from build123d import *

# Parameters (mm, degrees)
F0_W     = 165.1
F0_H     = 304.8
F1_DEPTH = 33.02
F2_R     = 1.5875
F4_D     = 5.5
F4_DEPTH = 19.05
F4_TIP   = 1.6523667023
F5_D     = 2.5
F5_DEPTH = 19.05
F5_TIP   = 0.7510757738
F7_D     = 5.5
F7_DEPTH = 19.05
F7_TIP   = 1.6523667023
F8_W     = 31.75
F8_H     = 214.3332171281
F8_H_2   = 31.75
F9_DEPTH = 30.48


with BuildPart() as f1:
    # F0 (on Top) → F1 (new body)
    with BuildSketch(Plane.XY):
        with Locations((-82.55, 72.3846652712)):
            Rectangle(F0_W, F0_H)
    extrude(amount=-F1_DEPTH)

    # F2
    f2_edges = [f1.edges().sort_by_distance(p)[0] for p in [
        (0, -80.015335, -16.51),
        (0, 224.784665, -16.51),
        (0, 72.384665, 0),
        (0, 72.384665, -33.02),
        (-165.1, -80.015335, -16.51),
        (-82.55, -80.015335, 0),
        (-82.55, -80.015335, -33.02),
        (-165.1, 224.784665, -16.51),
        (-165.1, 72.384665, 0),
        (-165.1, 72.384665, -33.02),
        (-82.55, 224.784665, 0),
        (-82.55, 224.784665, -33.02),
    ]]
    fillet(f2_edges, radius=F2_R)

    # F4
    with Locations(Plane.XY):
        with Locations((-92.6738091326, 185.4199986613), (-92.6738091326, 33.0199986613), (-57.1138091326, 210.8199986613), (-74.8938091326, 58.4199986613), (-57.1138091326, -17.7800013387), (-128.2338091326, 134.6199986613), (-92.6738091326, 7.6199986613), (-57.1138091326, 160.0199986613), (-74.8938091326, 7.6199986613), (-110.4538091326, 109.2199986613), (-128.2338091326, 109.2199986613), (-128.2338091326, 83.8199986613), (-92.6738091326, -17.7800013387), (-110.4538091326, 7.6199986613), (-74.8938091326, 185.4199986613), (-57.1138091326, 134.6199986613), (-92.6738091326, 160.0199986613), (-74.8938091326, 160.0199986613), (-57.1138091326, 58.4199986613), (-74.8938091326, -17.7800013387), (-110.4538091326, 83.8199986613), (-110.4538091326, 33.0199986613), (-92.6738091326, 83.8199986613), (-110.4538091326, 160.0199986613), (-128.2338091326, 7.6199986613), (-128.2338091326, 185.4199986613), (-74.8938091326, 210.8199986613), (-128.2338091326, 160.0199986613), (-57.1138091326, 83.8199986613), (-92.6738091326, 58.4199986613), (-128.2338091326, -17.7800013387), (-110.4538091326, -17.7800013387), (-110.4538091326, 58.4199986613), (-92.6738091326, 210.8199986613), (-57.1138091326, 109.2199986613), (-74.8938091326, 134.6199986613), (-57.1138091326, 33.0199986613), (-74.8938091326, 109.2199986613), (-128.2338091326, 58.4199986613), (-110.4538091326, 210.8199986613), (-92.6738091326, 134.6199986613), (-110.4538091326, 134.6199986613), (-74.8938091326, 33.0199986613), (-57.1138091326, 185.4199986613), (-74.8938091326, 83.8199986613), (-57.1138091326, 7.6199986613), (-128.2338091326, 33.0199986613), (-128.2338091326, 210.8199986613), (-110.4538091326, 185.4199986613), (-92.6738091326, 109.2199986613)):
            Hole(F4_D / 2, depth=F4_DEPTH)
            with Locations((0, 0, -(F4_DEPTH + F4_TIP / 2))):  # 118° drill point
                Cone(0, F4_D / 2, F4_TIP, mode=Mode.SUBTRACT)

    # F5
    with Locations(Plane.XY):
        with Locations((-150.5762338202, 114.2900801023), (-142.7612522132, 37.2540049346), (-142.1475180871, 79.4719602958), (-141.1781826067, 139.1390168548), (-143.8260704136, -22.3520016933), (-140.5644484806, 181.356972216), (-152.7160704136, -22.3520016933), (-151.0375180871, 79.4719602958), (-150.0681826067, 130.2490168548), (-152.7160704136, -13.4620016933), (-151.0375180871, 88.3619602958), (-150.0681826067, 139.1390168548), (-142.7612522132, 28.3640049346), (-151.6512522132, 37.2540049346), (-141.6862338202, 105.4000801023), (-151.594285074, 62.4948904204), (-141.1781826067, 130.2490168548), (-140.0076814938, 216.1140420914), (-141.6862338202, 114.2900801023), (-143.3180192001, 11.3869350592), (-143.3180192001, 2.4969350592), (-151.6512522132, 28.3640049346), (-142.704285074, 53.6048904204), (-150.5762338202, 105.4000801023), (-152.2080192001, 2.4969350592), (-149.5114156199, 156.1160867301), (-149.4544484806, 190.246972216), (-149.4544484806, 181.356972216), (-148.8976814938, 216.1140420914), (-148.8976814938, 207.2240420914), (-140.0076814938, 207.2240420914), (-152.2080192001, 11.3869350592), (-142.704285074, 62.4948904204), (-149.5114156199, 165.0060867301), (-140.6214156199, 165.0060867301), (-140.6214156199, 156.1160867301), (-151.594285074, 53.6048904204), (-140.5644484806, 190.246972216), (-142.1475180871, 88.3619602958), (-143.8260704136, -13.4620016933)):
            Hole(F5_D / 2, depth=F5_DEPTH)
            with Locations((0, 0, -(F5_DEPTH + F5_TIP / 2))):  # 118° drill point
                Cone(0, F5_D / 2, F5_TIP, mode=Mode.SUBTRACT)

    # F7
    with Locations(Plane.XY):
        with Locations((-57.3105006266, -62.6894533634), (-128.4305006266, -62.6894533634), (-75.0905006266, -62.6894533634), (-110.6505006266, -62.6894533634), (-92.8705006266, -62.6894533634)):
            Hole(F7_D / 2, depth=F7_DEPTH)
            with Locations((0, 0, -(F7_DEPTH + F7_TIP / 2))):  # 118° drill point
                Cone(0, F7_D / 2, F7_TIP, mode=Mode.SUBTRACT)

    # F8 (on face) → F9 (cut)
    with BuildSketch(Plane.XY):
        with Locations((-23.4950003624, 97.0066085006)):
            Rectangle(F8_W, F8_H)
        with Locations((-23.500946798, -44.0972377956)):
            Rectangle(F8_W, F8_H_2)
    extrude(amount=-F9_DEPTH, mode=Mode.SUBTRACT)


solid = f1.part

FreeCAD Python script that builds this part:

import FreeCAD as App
import Part
import Sketcher

V = App.Vector
Q = App.Units.Quantity

doc = App.newDocument("Part")
body = doc.addObject("PartDesign::Body", "Body")

sketch1 = body.newObject("Sketcher::SketchObject", "Sketch")
sketch1.AttachmentSupport = (doc.getObject("XY_Plane"), [""])
sketch1.MapMode = "FlatFace"
sketch1.addGeometry([
    Part.LineSegment(V(-165, 225, 0), V(-165, -80, 0)),
    Part.LineSegment(V(-165, -80, 0), V(0, -80, 0)),
    Part.LineSegment(V(0, -80, 0), V(0, 225, 0)),
    Part.LineSegment(V(0, 225, 0), V(-165, 225, 0)),
], False)
sketch1.addConstraint([
    Sketcher.Constraint("Coincident", 0, 2, 1, 1),
    Sketcher.Constraint("Coincident", 1, 2, 2, 1),
    Sketcher.Constraint("Coincident", 2, 2, 3, 1),
    Sketcher.Constraint("Coincident", 3, 2, 0, 1),
    Sketcher.Constraint("Vertical", 0),
    Sketcher.Constraint("Horizontal", 1),
    Sketcher.Constraint("Vertical", 2),
    Sketcher.Constraint("Horizontal", 3),
    Sketcher.Constraint("PointOnObject", 1, 2, -2),
    Sketcher.Constraint("DistanceY", 0, 2, 0, 1, Q("12 in")),
    Sketcher.Constraint("DistanceX", 1, 1, 1, 2, Q("6.5 in")),
    Sketcher.Constraint("DistanceY", 0, 2, -1, 1, Q("80.015335 mm")),
])
pad1 = body.newObject("PartDesign::Pad", "Pad")
pad1.Profile = sketch1
pad1.Length = Q("1.3 in")
pad1.Reversed = True
doc.recompute()

fillet = body.newObject("PartDesign::Fillet", "Fillet")
fillet.Base = (pad1, ["Edge1"])
fillet.UseAllEdges = True
fillet.Radius = Q("0.0625 in")

sketch2 = body.newObject("Sketcher::SketchObject", "Sketch001")
sketch2.AttachmentSupport = (doc.getObject("XY_Plane"), [""])
sketch2.MapMode = "FlatFace"
sketch2.addGeometry([
    Part.Circle(V(-92.7, 185.4, 0), V(0, 0, 1), 2.8),
    Part.Circle(V(-92.7, 33, 0), V(0, 0, 1), 2.8),
    Part.Circle(V(-57.1, 210.8, 0), V(0, 0, 1), 2.8),
    Part.Circle(V(-74.9, 58.4, 0), V(0, 0, 1), 2.8),
    Part.Circle(V(-57.1, -17.8, 0), V(0, 0, 1), 2.8),
    Part.Circle(V(-128.2, 134.6, 0), V(0, 0, 1), 2.8),
    Part.Circle(V(-92.7, 7.6, 0), V(0, 0, 1), 2.8),
    Part.Circle(V(-57.1, 160, 0), V(0, 0, 1), 2.8),
    Part.Circle(V(-74.9, 7.6, 0), V(0, 0, 1), 2.8),
    Part.Circle(V(-110.5, 109.2, 0), V(0, 0, 1), 2.8),
    Part.Circle(V(-128.2, 109.2, 0), V(0, 0, 1), 2.8),
    Part.Circle(V(-128.2, 83.8, 0), V(0, 0, 1), 2.8),
    Part.Circle(V(-92.7, -17.8, 0), V(0, 0, 1), 2.8),
    Part.Circle(V(-110.5, 7.6, 0), V(0, 0, 1), 2.8),
    Part.Circle(V(-74.9, 185.4, 0), V(0, 0, 1), 2.8),
    Part.Circle(V(-57.1, 134.6, 0), V(0, 0, 1), 2.8),
    Part.Circle(V(-92.7, 160, 0), V(0, 0, 1), 2.8),
    Part.Circle(V(-74.9, 160, 0), V(0, 0, 1), 2.8),
    Part.Circle(V(-57.1, 58.4, 0), V(0, 0, 1), 2.8),
    Part.Circle(V(-74.9, -17.8, 0), V(0, 0, 1), 2.8),
    Part.Circle(V(-110.5, 83.8, 0), V(0, 0, 1), 2.8),
    Part.Circle(V(-110.5, 33, 0), V(0, 0, 1), 2.8),
    Part.Circle(V(-92.7, 83.8, 0), V(0, 0, 1), 2.8),
    Part.Circle(V(-110.5, 160, 0), V(0, 0, 1), 2.8),
    Part.Circle(V(-128.2, 7.6, 0), V(0, 0, 1), 2.8),
    Part.Circle(V(-128.2, 185.4, 0), V(0, 0, 1), 2.8),
    Part.Circle(V(-74.9, 210.8, 0), V(0, 0, 1), 2.8),
    Part.Circle(V(-128.2, 160, 0), V(0, 0, 1), 2.8),
    Part.Circle(V(-57.1, 83.8, 0), V(0, 0, 1), 2.8),
    Part.Circle(V(-92.7, 58.4, 0), V(0, 0, 1), 2.8),
    Part.Circle(V(-128.2, -17.8, 0), V(0, 0, 1), 2.8),
    Part.Circle(V(-110.5, -17.8, 0), V(0, 0, 1), 2.8),
    Part.Circle(V(-110.5, 58.4, 0), V(0, 0, 1), 2.8),
    Part.Circle(V(-92.7, 210.8, 0), V(0, 0, 1), 2.8),
    Part.Circle(V(-57.1, 109.2, 0), V(0, 0, 1), 2.8),
    Part.Circle(V(-74.9, 134.6, 0), V(0, 0, 1), 2.8),
    Part.Circle(V(-57.1, 33, 0), V(0, 0, 1), 2.8),
    Part.Circle(V(-74.9, 109.2, 0), V(0, 0, 1), 2.8),
    Part.Circle(V(-128.2, 58.4, 0), V(0, 0, 1), 2.8),
    Part.Circle(V(-110.5, 210.8, 0), V(0, 0, 1), 2.8),
    Part.Circle(V(-92.7, 134.6, 0), V(0, 0, 1), 2.8),
    Part.Circle(V(-110.5, 134.6, 0), V(0, 0, 1), 2.8),
    Part.Circle(V(-74.9, 33, 0), V(0, 0, 1), 2.8),
    Part.Circle(V(-57.1, 185.4, 0), V(0, 0, 1), 2.8),
    Part.Circle(V(-74.9, 83.8, 0), V(0, 0, 1), 2.8),
    Part.Circle(V(-57.1, 7.6, 0), V(0, 0, 1), 2.8),
    Part.Circle(V(-128.2, 33, 0), V(0, 0, 1), 2.8),
    Part.Circle(V(-128.2, 210.8, 0), V(0, 0, 1), 2.8),
    Part.Circle(V(-110.5, 185.4, 0), V(0, 0, 1), 2.8),
    Part.Circle(V(-92.7, 109.2, 0), V(0, 0, 1), 2.8),
], False)
sketch2.addConstraint([
    Sketcher.Constraint("Equal", 0, 1),
    Sketcher.Constraint("Equal", 1, 2),
    Sketcher.Constraint("Equal", 2, 3),
    Sketcher.Constraint("Equal", 3, 4),
    Sketcher.Constraint("Equal", 4, 5),
    Sketcher.Constraint("Equal", 5, 6),
    Sketcher.Constraint("Equal", 6, 7),
    Sketcher.Constraint("Equal", 7, 8),
    Sketcher.Constraint("Equal", 8, 9),
    Sketcher.Constraint("Equal", 9, 10),
    Sketcher.Constraint("Equal", 10, 11),
    Sketcher.Constraint("Equal", 11, 12),
    Sketcher.Constraint("Equal", 12, 13),
    Sketcher.Constraint("Equal", 13, 14),
    Sketcher.Constraint("Equal", 14, 15),
    Sketcher.Constraint("Equal", 15, 16),
    Sketcher.Constraint("Equal", 16, 17),
    Sketcher.Constraint("Equal", 17, 18),
    Sketcher.Constraint("Equal", 18, 19),
    Sketcher.Constraint("Equal", 19, 20),
    Sketcher.Constraint("Equal", 20, 21),
    Sketcher.Constraint("Equal", 21, 22),
    Sketcher.Constraint("Equal", 22, 23),
    Sketcher.Constraint("Equal", 23, 24),
    Sketcher.Constraint("Equal", 24, 25),
    Sketcher.Constraint("Equal", 25, 26),
    Sketcher.Constraint("Equal", 26, 27),
    Sketcher.Constraint("Equal", 27, 28),
    Sketcher.Constraint("Equal", 28, 29),
    Sketcher.Constraint("Equal", 29, 30),
    Sketcher.Constraint("Equal", 30, 31),
    Sketcher.Constraint("Equal", 31, 32),
    Sketcher.Constraint("Equal", 32, 33),
    Sketcher.Constraint("Equal", 33, 34),
    Sketcher.Constraint("Equal", 34, 35),
    Sketcher.Constraint("Equal", 35, 36),
    Sketcher.Constraint("Equal", 36, 37),
    Sketcher.Constraint("Equal", 37, 38),
    Sketcher.Constraint("Equal", 38, 39),
    Sketcher.Constraint("Equal", 39, 40),
    Sketcher.Constraint("Equal", 40, 41),
    Sketcher.Constraint("Equal", 41, 42),
    Sketcher.Constraint("Equal", 42, 43),
    Sketcher.Constraint("Equal", 43, 44),
    Sketcher.Constraint("Equal", 44, 45),
    Sketcher.Constraint("Equal", 45, 46),
    Sketcher.Constraint("Equal", 46, 47),
    Sketcher.Constraint("Equal", 47, 48),
    Sketcher.Constraint("Equal", 48, 49),
    Sketcher.Constraint("Horizontal", 6, 3, 8, 3),
    Sketcher.Constraint("Horizontal", 9, 3, 10, 3),
    Sketcher.Constraint("Horizontal", 4, 3, 12, 3),
    Sketcher.Constraint("Horizontal", 8, 3, 13, 3),
    Sketcher.Constraint("Horizontal", 0, 3, 14, 3),
    Sketcher.Constraint("Horizontal", 5, 3, 15, 3),
    Sketcher.Constraint("Horizontal", 7, 3, 16, 3),
    Sketcher.Constraint("Horizontal", 16, 3, 17, 3),
    Sketcher.Constraint("Horizontal", 3, 3, 18, 3),
    Sketcher.Constraint("Horizontal", 12, 3, 19, 3),
    Sketcher.Constraint("Horizontal", 11, 3, 20, 3),
    Sketcher.Constraint("Horizontal", 1, 3, 21, 3),
    Sketcher.Constraint("Horizontal", 20, 3, 22, 3),
    Sketcher.Constraint("Horizontal", 17, 3, 23, 3),
    Sketcher.Constraint("Horizontal", 13, 3, 24, 3),
    Sketcher.Constraint("Horizontal", 14, 3, 25, 3),
    Sketcher.Constraint("Horizontal", 2, 3, 26, 3),
    Sketcher.Constraint("Horizontal", 23, 3, 27, 3),
    Sketcher.Constraint("Horizontal", 22, 3, 28, 3),
    Sketcher.Constraint("Horizontal", 18, 3, 29, 3),
    Sketcher.Constraint("Horizontal", 19, 3, 30, 3),
    Sketcher.Constraint("Horizontal", 30, 3, 31, 3),
    Sketcher.Constraint("Horizontal", 29, 3, 32, 3),
    Sketcher.Constraint("Horizontal", 26, 3, 33, 3),
    Sketcher.Constraint("Horizontal", 10, 3, 34, 3),
    Sketcher.Constraint("Horizontal", 15, 3, 35, 3),
    Sketcher.Constraint("Horizontal", 21, 3, 36, 3),
    Sketcher.Constraint("Horizontal", 34, 3, 37, 3),
    Sketcher.Constraint("Horizontal", 32, 3, 38, 3),
    Sketcher.Constraint("Horizontal", 33, 3, 39, 3),
    Sketcher.Constraint("Horizontal", 35, 3, 40, 3),
    Sketcher.Constraint("Horizontal", 40, 3, 41, 3),
    Sketcher.Constraint("Horizontal", 36, 3, 42, 3),
    Sketcher.Constraint("Horizontal", 25, 3, 43, 3),
    Sketcher.Constraint("Horizontal", 28, 3, 44, 3),
    Sketcher.Constraint("Horizontal", 24, 3, 45, 3),
    Sketcher.Constraint("Horizontal", 42, 3, 46, 3),
    Sketcher.Constraint("Horizontal", 39, 3, 47, 3),
    Sketcher.Constraint("Horizontal", 43, 3, 48, 3),
    Sketcher.Constraint("Horizontal", 37, 3, 49, 3),
    Sketcher.Constraint("Vertical", 0, 3, 1, 3),
    Sketcher.Constraint("Vertical", 2, 3, 4, 3),
    Sketcher.Constraint("Vertical", 1, 3, 6, 3),
    Sketcher.Constraint("Vertical", 4, 3, 7, 3),
    Sketcher.Constraint("Vertical", 3, 3, 8, 3),
    Sketcher.Constraint("Vertical", 5, 3, 10, 3),
    Sketcher.Constraint("Vertical", 10, 3, 11, 3),
    Sketcher.Constraint("Vertical", 6, 3, 12, 3),
    Sketcher.Constraint("Vertical", 9, 3, 13, 3),
    Sketcher.Constraint("Vertical", 8, 3, 14, 3),
    Sketcher.Constraint("Vertical", 7, 3, 15, 3),
    Sketcher.Constraint("Vertical", 12, 3, 16, 3),
    Sketcher.Constraint("Vertical", 14, 3, 17, 3),
    Sketcher.Constraint("Vertical", 15, 3, 18, 3),
    Sketcher.Constraint("Vertical", 17, 3, 19, 3),
    Sketcher.Constraint("Vertical", 13, 3, 20, 3),
    Sketcher.Constraint("Vertical", 20, 3, 21, 3),
    Sketcher.Constraint("Vertical", 16, 3, 22, 3),
    Sketcher.Constraint("Vertical", 21, 3, 23, 3),
    Sketcher.Constraint("Vertical", 11, 3, 24, 3),
    Sketcher.Constraint("Vertical", 24, 3, 25, 3),
    Sketcher.Constraint("Vertical", 19, 3, 26, 3),
    Sketcher.Constraint("Vertical", 25, 3, 27, 3),
    Sketcher.Constraint("Vertical", 18, 3, 28, 3),
    Sketcher.Constraint("Vertical", 22, 3, 29, 3),
    Sketcher.Constraint("Vertical", 27, 3, 30, 3),
    Sketcher.Constraint("Vertical", 23, 3, 31, 3),
    Sketcher.Constraint("Vertical", 31, 3, 32, 3),
    Sketcher.Constraint("Vertical", 29, 3, 33, 3),
    Sketcher.Constraint("Vertical", 28, 3, 34, 3),
    Sketcher.Constraint("Vertical", 26, 3, 35, 3),
    Sketcher.Constraint("Vertical", 34, 3, 36, 3),
    Sketcher.Constraint("Vertical", 35, 3, 37, 3),
    Sketcher.Constraint("Vertical", 30, 3, 38, 3),
    Sketcher.Constraint("Vertical", 32, 3, 39, 3),
    Sketcher.Constraint("Vertical", 33, 3, 40, 3),
    Sketcher.Constraint("Vertical", 39, 3, 41, 3),
    Sketcher.Constraint("Vertical", 37, 3, 42, 3),
    Sketcher.Constraint("Vertical", 36, 3, 43, 3),
    Sketcher.Constraint("Vertical", 42, 3, 44, 3),
    Sketcher.Constraint("Vertical", 43, 3, 45, 3),
    Sketcher.Constraint("Vertical", 38, 3, 46, 3),
    Sketcher.Constraint("Vertical", 46, 3, 47, 3),
    Sketcher.Constraint("Vertical", 41, 3, 48, 3),
    Sketcher.Constraint("Vertical", 40, 3, 49, 3),
    Sketcher.Constraint("DistanceY", 1, 3, 0, 3, Q("6 in")),
    Sketcher.Constraint("DistanceY", 0, 3, 2, 3, Q("1 in")),
    Sketcher.Constraint("DistanceY", 1, 3, 3, 3, Q("1 in")),
    Sketcher.Constraint("DistanceY", 4, 3, 1, 3, Q("2 in")),
    Sketcher.Constraint("DistanceY", 5, 3, 0, 3, Q("2 in")),
    Sketcher.Constraint("DistanceY", 6, 3, 1, 3, Q("1 in")),
    Sketcher.Constraint("DistanceY", 7, 3, 0, 3, Q("1 in")),
    Sketcher.Constraint("DistanceY", 9, 3, 5, 3, Q("1 in")),
    Sketcher.Constraint("DistanceY", 11, 3, 10, 3, Q("1 in")),
    Sketcher.Constraint("DistanceY", -1, 1, 0, 3, Q("7.2999999 in")),
    Sketcher.Constraint("DistanceX", 0, 3, 2, 3, Q("1.4 in")),
    Sketcher.Constraint("DistanceX", 1, 3, 3, 3, Q("0.7 in")),
    Sketcher.Constraint("DistanceX", 5, 3, 0, 3, Q("1.4 in")),
    Sketcher.Constraint("DistanceX", 5, 3, 9, 3, Q("0.7 in")),
    Sketcher.Constraint("Diameter", 0, Q("5.5 mm")),
    Sketcher.Constraint("DistanceX", 0, 3, -1, 1, Q("92.673809 mm")),
])
doc.recompute()
hole = body.newObject("PartDesign::Hole", "Hole")
hole.Profile = sketch2
hole.ThreadType = "None"
hole.Diameter = 5.5
hole.DepthType = "Dimension"
hole.Depth = Q("0.75 in")
hole.DrillPoint = "Angled"
hole.DrillPointAngle = 118

sketch3 = body.newObject("Sketcher::SketchObject", "Sketch002")
sketch3.AttachmentSupport = (doc.getObject("XY_Plane"), [""])
sketch3.MapMode = "FlatFace"
sketch3.addGeometry([
    Part.Circle(V(-150.6, 114.3, 0), V(0, 0, 1), 1.2),
    Part.Circle(V(-142.8, 37.3, 0), V(0, 0, 1), 1.2),
    Part.Circle(V(-142.1, 79.5, 0), V(0, 0, 1), 1.2),
    Part.Circle(V(-141.2, 139.1, 0), V(0, 0, 1), 1.2),
    Part.Circle(V(-143.8, -22.4, 0), V(0, 0, 1), 1.2),
    Part.Circle(V(-140.6, 181.4, 0), V(0, 0, 1), 1.2),
    Part.Circle(V(-152.7, -22.4, 0), V(0, 0, 1), 1.2),
    Part.Circle(V(-151, 79.5, 0), V(0, 0, 1), 1.2),
    Part.Circle(V(-150.1, 130.2, 0), V(0, 0, 1), 1.2),
    Part.Circle(V(-152.7, -13.5, 0), V(0, 0, 1), 1.2),
    Part.Circle(V(-151, 88.4, 0), V(0, 0, 1), 1.2),
    Part.Circle(V(-150.1, 139.1, 0), V(0, 0, 1), 1.2),
    Part.Circle(V(-142.8, 28.4, 0), V(0, 0, 1), 1.2),
    Part.Circle(V(-151.7, 37.3, 0), V(0, 0, 1), 1.2),
    Part.Circle(V(-141.7, 105.4, 0), V(0, 0, 1), 1.2),
    Part.Circle(V(-151.6, 62.5, 0), V(0, 0, 1), 1.2),
    Part.Circle(V(-141.2, 130.2, 0), V(0, 0, 1), 1.2),
    Part.Circle(V(-140, 216.1, 0), V(0, 0, 1), 1.2),
    Part.Circle(V(-141.7, 114.3, 0), V(0, 0, 1), 1.2),
    Part.Circle(V(-143.3, 11.4, 0), V(0, 0, 1), 1.2),
    Part.Circle(V(-143.3, 2.5, 0), V(0, 0, 1), 1.2),
    Part.Circle(V(-151.7, 28.4, 0), V(0, 0, 1), 1.2),
    Part.Circle(V(-142.7, 53.6, 0), V(0, 0, 1), 1.2),
    Part.Circle(V(-150.6, 105.4, 0), V(0, 0, 1), 1.2),
    Part.Circle(V(-152.2, 2.5, 0), V(0, 0, 1), 1.2),
    Part.Circle(V(-149.5, 156.1, 0), V(0, 0, 1), 1.2),
    Part.Circle(V(-149.5, 190.2, 0), V(0, 0, 1), 1.2),
    Part.Circle(V(-149.5, 181.4, 0), V(0, 0, 1), 1.2),
    Part.Circle(V(-148.9, 216.1, 0), V(0, 0, 1), 1.2),
    Part.Circle(V(-148.9, 207.2, 0), V(0, 0, 1), 1.2),
    Part.Circle(V(-140, 207.2, 0), V(0, 0, 1), 1.2),
    Part.Circle(V(-152.2, 11.4, 0), V(0, 0, 1), 1.2),
    Part.Circle(V(-142.7, 62.5, 0), V(0, 0, 1), 1.2),
    Part.Circle(V(-149.5, 165, 0), V(0, 0, 1), 1.2),
    Part.Circle(V(-140.6, 165, 0), V(0, 0, 1), 1.2),
    Part.Circle(V(-140.6, 156.1, 0), V(0, 0, 1), 1.2),
    Part.Circle(V(-151.6, 53.6, 0), V(0, 0, 1), 1.2),
    Part.Circle(V(-140.6, 190.2, 0), V(0, 0, 1), 1.2),
    Part.Circle(V(-142.1, 88.4, 0), V(0, 0, 1), 1.2),
    Part.Circle(V(-143.8, -13.5, 0), V(0, 0, 1), 1.2),
], False)
sketch3.addConstraint([
    Sketcher.Constraint("Equal", 0, 1),
    Sketcher.Constraint("Equal", 1, 2),
    Sketcher.Constraint("Equal", 2, 3),
    Sketcher.Constraint("Equal", 3, 4),
    Sketcher.Constraint("Equal", 4, 5),
    Sketcher.Constraint("Equal", 5, 6),
    Sketcher.Constraint("Equal", 6, 7),
    Sketcher.Constraint("Equal", 7, 8),
    Sketcher.Constraint("Equal", 8, 9),
    Sketcher.Constraint("Equal", 9, 10),
    Sketcher.Constraint("Equal", 10, 11),
    Sketcher.Constraint("Equal", 11, 12),
    Sketcher.Constraint("Equal", 12, 13),
    Sketcher.Constraint("Equal", 13, 14),
    Sketcher.Constraint("Equal", 14, 15),
    Sketcher.Constraint("Equal", 15, 16),
    Sketcher.Constraint("Equal", 16, 17),
    Sketcher.Constraint("Equal", 17, 18),
    Sketcher.Constraint("Equal", 18, 19),
    Sketcher.Constraint("Equal", 19, 20),
    Sketcher.Constraint("Equal", 20, 21),
    Sketcher.Constraint("Equal", 21, 22),
    Sketcher.Constraint("Equal", 22, 23),
    Sketcher.Constraint("Equal", 23, 24),
    Sketcher.Constraint("Equal", 24, 25),
    Sketcher.Constraint("Equal", 25, 26),
    Sketcher.Constraint("Equal", 26, 27),
    Sketcher.Constraint("Equal", 27, 28),
    Sketcher.Constraint("Equal", 28, 29),
    Sketcher.Constraint("Equal", 29, 30),
    Sketcher.Constraint("Equal", 30, 31),
    Sketcher.Constraint("Equal", 31, 32),
    Sketcher.Constraint("Equal", 32, 33),
    Sketcher.Constraint("Equal", 33, 34),
    Sketcher.Constraint("Equal", 34, 35),
    Sketcher.Constraint("Equal", 35, 36),
    Sketcher.Constraint("Equal", 36, 37),
    Sketcher.Constraint("Equal", 37, 38),
    Sketcher.Constraint("Equal", 38, 39),
    Sketcher.Constraint("Horizontal", 4, 3, 6, 3),
    Sketcher.Constraint("Horizontal", 2, 3, 7, 3),
    Sketcher.Constraint("Horizontal", 3, 3, 11, 3),
    Sketcher.Constraint("Horizontal", 1, 3, 13, 3),
    Sketcher.Constraint("Horizontal", 8, 3, 16, 3),
    Sketcher.Constraint("Horizontal", 0, 3, 18, 3),
    Sketcher.Constraint("Horizontal", 12, 3, 21, 3),
    Sketcher.Constraint("Horizontal", 14, 3, 23, 3),
    Sketcher.Constraint("Horizontal", 20, 3, 24, 3),
    Sketcher.Constraint("Horizontal", 5, 3, 27, 3),
    Sketcher.Constraint("Horizontal", 17, 3, 28, 3),
    Sketcher.Constraint("Horizontal", 29, 3, 30, 3),
    Sketcher.Constraint("Horizontal", 19, 3, 31, 3),
    Sketcher.Constraint("Horizontal", 15, 3, 32, 3),
    Sketcher.Constraint("Horizontal", 33, 3, 34, 3),
    Sketcher.Constraint("Horizontal", 25, 3, 35, 3),
    Sketcher.Constraint("Horizontal", 22, 3, 36, 3),
    Sketcher.Constraint("Horizontal", 26, 3, 37, 3),
    Sketcher.Constraint("Horizontal", 10, 3, 38, 3),
    Sketcher.Constraint("Horizontal", 9, 3, 39, 3),
    Sketcher.Constraint("Vertical", 6, 3, 9, 3),
    Sketcher.Constraint("Vertical", 7, 3, 10, 3),
    Sketcher.Constraint("Vertical", 8, 3, 11, 3),
    Sketcher.Constraint("Vertical", 1, 3, 12, 3),
    Sketcher.Constraint("Vertical", 3, 3, 16, 3),
    Sketcher.Constraint("Vertical", 14, 3, 18, 3),
    Sketcher.Constraint("Vertical", 19, 3, 20, 3),
    Sketcher.Constraint("Vertical", 13, 3, 21, 3),
    Sketcher.Constraint("Vertical", 0, 3, 23, 3),
    Sketcher.Constraint("Vertical", 26, 3, 27, 3),
    Sketcher.Constraint("Vertical", 28, 3, 29, 3),
    Sketcher.Constraint("Vertical", 17, 3, 30, 3),
    Sketcher.Constraint("Vertical", 24, 3, 31, 3),
    Sketcher.Constraint("Vertical", 22, 3, 32, 3),
    Sketcher.Constraint("Vertical", 25, 3, 33, 3),
    Sketcher.Constraint("Vertical", 34, 3, 35, 3),
    Sketcher.Constraint("Vertical", 15, 3, 36, 3),
    Sketcher.Constraint("Vertical", 5, 3, 37, 3),
    Sketcher.Constraint("Vertical", 2, 3, 38, 3),
    Sketcher.Constraint("Vertical", 4, 3, 39, 3),
    Sketcher.Constraint("Diameter", 0, Q("2.5 mm")),
    Sketcher.Constraint("DistanceY", 4, 3, -1, 1, Q("0.8800001 in")),
    Sketcher.Constraint("DistanceY", 9, 3, -1, 1, Q("0.5300001 in")),
    Sketcher.Constraint("DistanceX", 6, 3, 4, 3, Q("0.35 in")),
    Sketcher.Constraint("DistanceX", 7, 3, 2, 3, Q("0.35 in")),
    Sketcher.Constraint("DistanceX", 8, 3, 3, 3, Q("0.35 in")),
    Sketcher.Constraint("DistanceY", 8, 3, 3, 3, Q("0.35 in")),
    Sketcher.Constraint("DistanceY", 7, 3, 10, 3, Q("0.35 in")),
    Sketcher.Constraint("DistanceY", 12, 3, 1, 3, Q("0.35 in")),
    Sketcher.Constraint("DistanceX", 13, 3, 1, 3, Q("0.35 in")),
    Sketcher.Constraint("DistanceX", 0, 3, 14, 3, Q("0.35 in")),
    Sketcher.Constraint("DistanceY", 14, 3, 0, 3, Q("0.35 in")),
    Sketcher.Constraint("DistanceY", 20, 3, 19, 3, Q("0.35 in")),
    Sketcher.Constraint("DistanceX", 15, 3, 22, 3, Q("0.35 in")),
    Sketcher.Constraint("DistanceY", 22, 3, 15, 3, Q("0.35 in")),
    Sketcher.Constraint("DistanceX", 24, 3, 20, 3, Q("0.35 in")),
    Sketcher.Constraint("DistanceX", 26, 3, 5, 3, Q("0.35 in")),
    Sketcher.Constraint("DistanceY", 5, 3, 26, 3, Q("0.35 in")),
    Sketcher.Constraint("DistanceX", 28, 3, 17, 3, Q("0.35 in")),
    Sketcher.Constraint("DistanceY", 29, 3, 28, 3, Q("0.35 in")),
    Sketcher.Constraint("DistanceY", 25, 3, 33, 3, Q("0.35 in")),
    Sketcher.Constraint("DistanceX", 33, 3, 34, 3, Q("0.35 in")),
    Sketcher.Constraint("DistanceX", 3, 3, 17, 3, Q("1.170501 mm")),
    Sketcher.Constraint("DistanceY", -1, 1, 0, 3, Q("114.29008 mm")),
    Sketcher.Constraint("DistanceX", 2, 3, -1, 1, Q("142.147518 mm")),
    Sketcher.Constraint("DistanceY", -1, 1, 2, 3, Q("79.47196 mm")),
    Sketcher.Constraint("DistanceX", 4, 3, -1, 1, Q("143.82607 mm")),
    Sketcher.Constraint("DistanceX", 5, 3, -1, 1, Q("140.564448 mm")),
    Sketcher.Constraint("DistanceY", -1, 1, 15, 3, Q("62.49489 mm")),
    Sketcher.Constraint("DistanceX", 17, 3, -1, 1, Q("140.007681 mm")),
    Sketcher.Constraint("DistanceX", 19, 3, -1, 1, Q("143.318019 mm")),
    Sketcher.Constraint("DistanceX", 0, 3, 1, 3, Q("7.814982 mm")),
    Sketcher.Constraint("DistanceX", 0, 3, 3, 3, Q("9.398051 mm")),
    Sketcher.Constraint("DistanceY", 1, 3, 3, 3, Q("101.885012 mm")),
    Sketcher.Constraint("DistanceY", 4, 3, 3, 3, Q("161.491019 mm")),
    Sketcher.Constraint("DistanceY", 2, 3, 5, 3, Q("101.885012 mm")),
    Sketcher.Constraint("DistanceY", 5, 3, 17, 3, Q("34.75707 mm")),
    Sketcher.Constraint("DistanceY", 19, 3, 12, 3, Q("16.97707 mm")),
    Sketcher.Constraint("DistanceY", 11, 3, 25, 3, Q("16.97707 mm")),
    Sketcher.Constraint("DistanceX", 15, 3, -1, 1, Q("151.594285 mm")),
    Sketcher.Constraint("DistanceX", 25, 3, -1, 1, Q("149.511416 mm")),
])
doc.recompute()
hole2 = body.newObject("PartDesign::Hole", "Hole001")
hole2.Profile = sketch3
hole2.ThreadType = "None"
hole2.Diameter = 2.5
hole2.DepthType = "Dimension"
hole2.Depth = Q("0.75 in")
hole2.DrillPoint = "Angled"
hole2.DrillPointAngle = 118

sketch4 = body.newObject("Sketcher::SketchObject", "Sketch003")
sketch4.AttachmentSupport = (doc.getObject("XY_Plane"), [""])
sketch4.MapMode = "FlatFace"
sketch4.addGeometry([
    Part.Circle(V(-57.3, -62.7, 0), V(0, 0, 1), 2.8),
    Part.Circle(V(-128.4, -62.7, 0), V(0, 0, 1), 2.8),
    Part.Circle(V(-75.1, -62.7, 0), V(0, 0, 1), 2.8),
    Part.Circle(V(-110.7, -62.7, 0), V(0, 0, 1), 2.8),
    Part.Circle(V(-92.9, -62.7, 0), V(0, 0, 1), 2.8),
], False)
sketch4.addConstraint([
    Sketcher.Constraint("Equal", 0, 1),
    Sketcher.Constraint("Equal", 1, 2),
    Sketcher.Constraint("Equal", 2, 3),
    Sketcher.Constraint("Equal", 3, 4),
    Sketcher.Constraint("Horizontal", 0, 3, 1, 3),
    Sketcher.Constraint("Horizontal", 1, 3, 2, 3),
    Sketcher.Constraint("Horizontal", 2, 3, 3, 3),
    Sketcher.Constraint("Horizontal", 3, 3, 4, 3),
    Sketcher.Constraint("DistanceX", 1, 3, 0, 3, Q("2.8 in")),
    Sketcher.Constraint("DistanceX", 2, 3, 0, 3, Q("0.7 in")),
    Sketcher.Constraint("DistanceX", 1, 3, 3, 3, Q("0.7 in")),
    Sketcher.Constraint("DistanceX", 4, 3, 2, 3, Q("0.7 in")),
    Sketcher.Constraint("Diameter", 0, Q("5.5 mm")),
    Sketcher.Constraint("DistanceX", 0, 3, -1, 1, Q("57.310501 mm")),
    Sketcher.Constraint("DistanceY", 0, 3, -1, 1, Q("62.689453 mm")),
])
doc.recompute()
hole3 = body.newObject("PartDesign::Hole", "Hole002")
hole3.Profile = sketch4
hole3.ThreadType = "None"
hole3.Diameter = 5.5
hole3.DepthType = "Dimension"
hole3.Depth = Q("0.75 in")
hole3.DrillPoint = "Angled"
hole3.DrillPointAngle = 118

sketch5 = body.newObject("Sketcher::SketchObject", "Sketch004")
sketch5.AttachmentSupport = (doc.getObject("XY_Plane"), [""])
sketch5.MapMode = "FlatFace"
sketch5.addGeometry([
    Part.LineSegment(V(-39, 204, 0), V(-39, -10, 0)),
    Part.LineSegment(V(-39, -10, 0), V(-8, -10, 0)),
    Part.LineSegment(V(-8, -10, 0), V(-8, 204, 0)),
    Part.LineSegment(V(-8, 204, 0), V(-39, 204, 0)),
    Part.LineSegment(V(-39, -28, 0), V(-39, -60, 0)),
    Part.LineSegment(V(-39, -60, 0), V(-8, -60, 0)),
    Part.LineSegment(V(-8, -60, 0), V(-8, -28, 0)),
    Part.LineSegment(V(-8, -28, 0), V(-39, -28, 0)),
], False)
sketch5.addConstraint([
    Sketcher.Constraint("Coincident", 0, 2, 1, 1),
    Sketcher.Constraint("Coincident", 1, 2, 2, 1),
    Sketcher.Constraint("Coincident", 2, 2, 3, 1),
    Sketcher.Constraint("Coincident", 3, 2, 0, 1),
    Sketcher.Constraint("Coincident", 4, 2, 5, 1),
    Sketcher.Constraint("Coincident", 5, 2, 6, 1),
    Sketcher.Constraint("Coincident", 6, 2, 7, 1),
    Sketcher.Constraint("Coincident", 7, 2, 4, 1),
    Sketcher.Constraint("Vertical", 0),
    Sketcher.Constraint("Horizontal", 1),
    Sketcher.Constraint("Vertical", 2),
    Sketcher.Constraint("Horizontal", 3),
    Sketcher.Constraint("Vertical", 4),
    Sketcher.Constraint("Horizontal", 5),
    Sketcher.Constraint("Vertical", 6),
    Sketcher.Constraint("Horizontal", 7),
    Sketcher.Constraint("Equal", 3, 5),
    Sketcher.Constraint("Equal", 7, 4),
    Sketcher.Constraint("DistanceX", 1, 1, 1, 2, Q("1.25 in")),
    Sketcher.Constraint("DistanceY", 0, 2, -1, 1, Q("0.4 in")),
    Sketcher.Constraint("DistanceX", 1, 2, -1, 1, Q("0.3 in")),
    Sketcher.Constraint("DistanceY", 0, 2, 0, 1, Q("214.333217 mm")),
    Sketcher.Constraint("DistanceX", 4, 2, -1, 1, Q("39.375947 mm")),
    Sketcher.Constraint("DistanceY", 4, 2, -1, 1, Q("59.972238 mm")),
])
pocket1 = body.newObject("PartDesign::Pocket", "Pocket")
pocket1.Profile = sketch5
pocket1.Length = Q("1.2 in")

doc.recompute()
